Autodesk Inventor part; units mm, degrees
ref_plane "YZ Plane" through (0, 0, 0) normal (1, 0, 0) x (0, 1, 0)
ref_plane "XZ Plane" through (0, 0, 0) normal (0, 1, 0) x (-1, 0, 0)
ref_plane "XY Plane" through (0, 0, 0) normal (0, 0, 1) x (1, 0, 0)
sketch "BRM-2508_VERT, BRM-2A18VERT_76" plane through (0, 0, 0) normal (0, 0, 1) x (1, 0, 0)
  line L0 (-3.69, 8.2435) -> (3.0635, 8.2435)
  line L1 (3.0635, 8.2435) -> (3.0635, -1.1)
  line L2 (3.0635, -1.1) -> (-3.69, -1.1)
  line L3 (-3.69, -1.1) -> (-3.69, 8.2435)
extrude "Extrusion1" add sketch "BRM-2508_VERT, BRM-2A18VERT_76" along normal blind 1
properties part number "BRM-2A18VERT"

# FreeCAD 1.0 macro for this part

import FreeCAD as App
import Part
import Sketcher

doc = App.newDocument("Part")
body = doc.addObject("PartDesign::Body", "Body")

sketch1 = doc.addObject("Sketcher::SketchObject", "Sketch")
body.addObject(sketch1)
sketch1.AttachmentSupport = (doc.XY_Plane, [""])
sketch1.MapMode = "FlatFace"
sketch1.addGeometry(Part.LineSegment(App.Vector(3, 8, 0), App.Vector(-4, 8, 0)), False)
sketch1.addGeometry(Part.LineSegment(App.Vector(-4, 8, 0), App.Vector(-4, -1, 0)), False)
sketch1.addGeometry(Part.LineSegment(App.Vector(-4, -1, 0), App.Vector(3, -1, 0)), False)
sketch1.addGeometry(Part.LineSegment(App.Vector(3, -1, 0), App.Vector(3, 8, 0)), False)
sketch1.addConstraint(Sketcher.Constraint("Coincident", 0, 2, 1, 1))
sketch1.addConstraint(Sketcher.Constraint("Coincident", 1, 2, 2, 1))
sketch1.addConstraint(Sketcher.Constraint("Coincident", 2, 2, 3, 1))
sketch1.addConstraint(Sketcher.Constraint("Coincident", 3, 2, 0, 1))
sketch1.addConstraint(Sketcher.Constraint("Horizontal", 0))
sketch1.addConstraint(Sketcher.Constraint("Vertical", 1))
sketch1.addConstraint(Sketcher.Constraint("Horizontal", 2))
sketch1.addConstraint(Sketcher.Constraint("Vertical", 3))
sketch1.addConstraint(Sketcher.Constraint("DistanceY", 1, 2, -1, 1, 1.1))
sketch1.addConstraint(Sketcher.Constraint("DistanceX", 0, 2, -1, 1, 3.69))
sketch1.addConstraint(Sketcher.Constraint("DistanceX", 0, 2, 0, 1, 6.7535))
sketch1.addConstraint(Sketcher.Constraint("DistanceY", 1, 2, 1, 1, 9.3435))
pad1 = doc.addObject("PartDesign::Pad", "Pad")
body.addObject(pad1)
pad1.Profile = sketch1
pad1.Length = 1

doc.recompute()
